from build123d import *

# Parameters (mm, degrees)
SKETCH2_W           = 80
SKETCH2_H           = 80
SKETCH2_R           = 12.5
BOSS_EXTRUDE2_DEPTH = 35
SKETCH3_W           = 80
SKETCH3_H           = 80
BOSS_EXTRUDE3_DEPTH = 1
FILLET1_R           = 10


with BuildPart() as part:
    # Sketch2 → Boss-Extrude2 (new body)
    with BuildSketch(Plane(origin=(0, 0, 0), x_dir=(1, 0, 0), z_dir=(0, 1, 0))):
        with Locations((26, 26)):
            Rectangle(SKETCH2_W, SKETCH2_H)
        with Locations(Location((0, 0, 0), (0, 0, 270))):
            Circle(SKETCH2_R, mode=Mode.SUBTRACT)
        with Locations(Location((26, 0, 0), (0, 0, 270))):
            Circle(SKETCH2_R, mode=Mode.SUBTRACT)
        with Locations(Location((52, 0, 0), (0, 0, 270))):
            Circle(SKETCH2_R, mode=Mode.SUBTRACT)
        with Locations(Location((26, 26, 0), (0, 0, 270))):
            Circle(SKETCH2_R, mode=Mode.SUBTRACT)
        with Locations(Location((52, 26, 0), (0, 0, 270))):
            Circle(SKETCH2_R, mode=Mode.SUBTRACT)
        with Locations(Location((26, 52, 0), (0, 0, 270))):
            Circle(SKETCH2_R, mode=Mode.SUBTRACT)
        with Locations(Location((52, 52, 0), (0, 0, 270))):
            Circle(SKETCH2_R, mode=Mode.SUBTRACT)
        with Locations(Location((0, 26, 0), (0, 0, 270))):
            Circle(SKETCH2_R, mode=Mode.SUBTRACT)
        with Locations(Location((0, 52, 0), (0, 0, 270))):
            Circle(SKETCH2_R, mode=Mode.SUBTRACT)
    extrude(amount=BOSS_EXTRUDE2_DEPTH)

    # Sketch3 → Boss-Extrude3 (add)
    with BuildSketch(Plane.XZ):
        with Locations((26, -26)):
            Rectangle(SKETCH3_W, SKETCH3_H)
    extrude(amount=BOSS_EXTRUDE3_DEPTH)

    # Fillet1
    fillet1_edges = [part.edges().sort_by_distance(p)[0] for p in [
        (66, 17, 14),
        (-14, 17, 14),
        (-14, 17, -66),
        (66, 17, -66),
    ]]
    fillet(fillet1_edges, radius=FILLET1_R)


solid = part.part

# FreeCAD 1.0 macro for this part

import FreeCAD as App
import Part
import Sketcher
from FreeCAD import Vector
Q = App.Units.Quantity


def edges_at(feature, points):
    """Names of the edges that pass closest to the given points."""
    edges = feature.Shape.Edges
    near = lambda p: min(range(len(edges)), key=lambda i: edges[i].distToShape(Part.Vertex(*p))[0])
    return sorted({f"Edge{near(p) + 1}" for p in points})

doc = App.newDocument("Part")
body = doc.addObject("PartDesign::Body", "Body")

# Sketch on XZ plane
sketch1 = body.newObject("Sketcher::SketchObject", "Sketch")
sketch1.AttachmentSupport = (doc.getObject("XZ_Plane"), [""])
sketch1.MapMode = "FlatFace"
sketch1.addGeometry([
    Part.LineSegment(Vector(-14, -66, 0), Vector(-14, 14, 0)),  # 0
    Part.LineSegment(Vector(-14, 14, 0), Vector(66, 14, 0)),  # 1
    Part.LineSegment(Vector(66, 14, 0), Vector(66, -66, 0)),  # 2
    Part.LineSegment(Vector(66, -66, 0), Vector(-14, -66, 0)),  # 3
    Part.Circle(Vector(0, 0, 0), Vector(0, 0, 1), 12.5),  # 4
    Part.Circle(Vector(26, 0, 0), Vector(0, 0, 1), 12.5),  # 5
    Part.Circle(Vector(52, 0, 0), Vector(0, 0, 1), 12.5),  # 6
    Part.Circle(Vector(0, -26, 0), Vector(0, 0, 1), 12.5),  # 7
    Part.Circle(Vector(0, -52, 0), Vector(0, 0, 1), 12.5),  # 8
    Part.Circle(Vector(26, -26, 0), Vector(0, 0, 1), 12.5),  # 9
    Part.Circle(Vector(52, -26, 0), Vector(0, 0, 1), 12.5),  # 10
    Part.Circle(Vector(26, -52, 0), Vector(0, 0, 1), 12.5),  # 11
    Part.Circle(Vector(52, -52, 0), Vector(0, 0, 1), 12.5),  # 12
], False)
sketch1.addConstraint([
    Sketcher.Constraint("Coincident", 0, 2, 1, 1),
    Sketcher.Constraint("Coincident", 1, 2, 2, 1),
    Sketcher.Constraint("Coincident", 2, 2, 3, 1),
    Sketcher.Constraint("Coincident", 3, 2, 0, 1),
    Sketcher.Constraint("Vertical", 0),
    Sketcher.Constraint("Horizontal", 1),
    Sketcher.Constraint("Vertical", 2),
    Sketcher.Constraint("Horizontal", 3),
    Sketcher.Constraint("Coincident", 4, 3, -1, 1),
    Sketcher.Constraint("Equal", 4, 5),
    Sketcher.Constraint("Equal", 5, 6),
    Sketcher.Constraint("Equal", 6, 7),
    Sketcher.Constraint("Equal", 7, 8),
    Sketcher.Constraint("Equal", 8, 9),
    Sketcher.Constraint("Equal", 9, 10),
    Sketcher.Constraint("Equal", 10, 11),
    Sketcher.Constraint("Equal", 11, 12),
    Sketcher.Constraint("PointOnObject", 5, 3, -1),
    Sketcher.Constraint("PointOnObject", 6, 3, -1),
    Sketcher.Constraint("PointOnObject", 7, 3, -2),
    Sketcher.Constraint("PointOnObject", 8, 3, -2),
    Sketcher.Constraint("Horizontal", 7, 3, 9, 3),
    Sketcher.Constraint("Horizontal", 9, 3, 10, 3),
    Sketcher.Constraint("Horizontal", 8, 3, 11, 3),
    Sketcher.Constraint("Horizontal", 11, 3, 12, 3),
    Sketcher.Constraint("Vertical", 5, 3, 9, 3),
    Sketcher.Constraint("Vertical", 6, 3, 10, 3),
    Sketcher.Constraint("Vertical", 9, 3, 11, 3),
    Sketcher.Constraint("Vertical", 10, 3, 12, 3),
    Sketcher.Constraint("Equal", 3, 0),
    Sketcher.Constraint("Diameter", 4, Q("25 mm")),
    Sketcher.Constraint("DistanceX", 1, 1, 1, 2, Q("80 mm")),
    Sketcher.Constraint("DistanceX", -1, 1, 5, 3, Q("26 mm")),
    Sketcher.Constraint("DistanceX", -1, 1, 6, 3, Q("52 mm")),
    Sketcher.Constraint("DistanceY", 7, 3, -1, 1, Q("26 mm")),
    Sketcher.Constraint("DistanceY", 8, 3, -1, 1, Q("52 mm")),
    Sketcher.Constraint("DistanceX", 0, 2, -1, 1, Q("14 mm")),
    Sketcher.Constraint("DistanceY", -1, 1, 0, 2, Q("14 mm")),
])
pad1 = body.newObject("PartDesign::Pad", "Pad")
pad1.Profile = sketch1
pad1.Length = 35
pad1.Reversed = True

# Sketch on XZ plane
sketch2 = body.newObject("Sketcher::SketchObject", "Sketch001")
sketch2.AttachmentSupport = (doc.getObject("XZ_Plane"), [""])
sketch2.MapMode = "FlatFace"
sketch2.addGeometry([
    Part.LineSegment(Vector(-14, 14, 0), Vector(-14, -66, 0)),
    Part.LineSegment(Vector(-14, -66, 0), Vector(66, -66, 0)),
    Part.LineSegment(Vector(66, -66, 0), Vector(66, 14, 0)),
    Part.LineSegment(Vector(66, 14, 0), Vector(-14, 14, 0)),
], False)
sketch2.addConstraint([
    Sketcher.Constraint("Coincident", 0, 2, 1, 1),
    Sketcher.Constraint("Coincident", 1, 2, 2, 1),
    Sketcher.Constraint("Coincident", 2, 2, 3, 1),
    Sketcher.Constraint("Coincident", 3, 2, 0, 1),
    Sketcher.Constraint("Vertical", 0),
    Sketcher.Constraint("Horizontal", 1),
    Sketcher.Constraint("Vertical", 2),
    Sketcher.Constraint("Horizontal", 3),
    Sketcher.Constraint("Equal", 3, 0),
    Sketcher.Constraint("DistanceX", 1, 1, 1, 2, Q("80 mm")),
    Sketcher.Constraint("DistanceX", 0, 2, -1, 1, Q("14 mm")),
    Sketcher.Constraint("DistanceY", 0, 2, -1, 1, Q("66 mm")),
])
pad2 = body.newObject("PartDesign::Pad", "Pad001")
pad2.Profile = sketch2
pad2.Length = 1
doc.recompute()

fillet = body.newObject("PartDesign::Fillet", "Fillet")
fillet.Base = (pad2, edges_at(pad2, [
    (66, 17, 14),
    (-14, 17, 14),
    (-14, 17, -66),
    (66, 17, -66),
]))
fillet.Radius = 10

doc.recompute()
